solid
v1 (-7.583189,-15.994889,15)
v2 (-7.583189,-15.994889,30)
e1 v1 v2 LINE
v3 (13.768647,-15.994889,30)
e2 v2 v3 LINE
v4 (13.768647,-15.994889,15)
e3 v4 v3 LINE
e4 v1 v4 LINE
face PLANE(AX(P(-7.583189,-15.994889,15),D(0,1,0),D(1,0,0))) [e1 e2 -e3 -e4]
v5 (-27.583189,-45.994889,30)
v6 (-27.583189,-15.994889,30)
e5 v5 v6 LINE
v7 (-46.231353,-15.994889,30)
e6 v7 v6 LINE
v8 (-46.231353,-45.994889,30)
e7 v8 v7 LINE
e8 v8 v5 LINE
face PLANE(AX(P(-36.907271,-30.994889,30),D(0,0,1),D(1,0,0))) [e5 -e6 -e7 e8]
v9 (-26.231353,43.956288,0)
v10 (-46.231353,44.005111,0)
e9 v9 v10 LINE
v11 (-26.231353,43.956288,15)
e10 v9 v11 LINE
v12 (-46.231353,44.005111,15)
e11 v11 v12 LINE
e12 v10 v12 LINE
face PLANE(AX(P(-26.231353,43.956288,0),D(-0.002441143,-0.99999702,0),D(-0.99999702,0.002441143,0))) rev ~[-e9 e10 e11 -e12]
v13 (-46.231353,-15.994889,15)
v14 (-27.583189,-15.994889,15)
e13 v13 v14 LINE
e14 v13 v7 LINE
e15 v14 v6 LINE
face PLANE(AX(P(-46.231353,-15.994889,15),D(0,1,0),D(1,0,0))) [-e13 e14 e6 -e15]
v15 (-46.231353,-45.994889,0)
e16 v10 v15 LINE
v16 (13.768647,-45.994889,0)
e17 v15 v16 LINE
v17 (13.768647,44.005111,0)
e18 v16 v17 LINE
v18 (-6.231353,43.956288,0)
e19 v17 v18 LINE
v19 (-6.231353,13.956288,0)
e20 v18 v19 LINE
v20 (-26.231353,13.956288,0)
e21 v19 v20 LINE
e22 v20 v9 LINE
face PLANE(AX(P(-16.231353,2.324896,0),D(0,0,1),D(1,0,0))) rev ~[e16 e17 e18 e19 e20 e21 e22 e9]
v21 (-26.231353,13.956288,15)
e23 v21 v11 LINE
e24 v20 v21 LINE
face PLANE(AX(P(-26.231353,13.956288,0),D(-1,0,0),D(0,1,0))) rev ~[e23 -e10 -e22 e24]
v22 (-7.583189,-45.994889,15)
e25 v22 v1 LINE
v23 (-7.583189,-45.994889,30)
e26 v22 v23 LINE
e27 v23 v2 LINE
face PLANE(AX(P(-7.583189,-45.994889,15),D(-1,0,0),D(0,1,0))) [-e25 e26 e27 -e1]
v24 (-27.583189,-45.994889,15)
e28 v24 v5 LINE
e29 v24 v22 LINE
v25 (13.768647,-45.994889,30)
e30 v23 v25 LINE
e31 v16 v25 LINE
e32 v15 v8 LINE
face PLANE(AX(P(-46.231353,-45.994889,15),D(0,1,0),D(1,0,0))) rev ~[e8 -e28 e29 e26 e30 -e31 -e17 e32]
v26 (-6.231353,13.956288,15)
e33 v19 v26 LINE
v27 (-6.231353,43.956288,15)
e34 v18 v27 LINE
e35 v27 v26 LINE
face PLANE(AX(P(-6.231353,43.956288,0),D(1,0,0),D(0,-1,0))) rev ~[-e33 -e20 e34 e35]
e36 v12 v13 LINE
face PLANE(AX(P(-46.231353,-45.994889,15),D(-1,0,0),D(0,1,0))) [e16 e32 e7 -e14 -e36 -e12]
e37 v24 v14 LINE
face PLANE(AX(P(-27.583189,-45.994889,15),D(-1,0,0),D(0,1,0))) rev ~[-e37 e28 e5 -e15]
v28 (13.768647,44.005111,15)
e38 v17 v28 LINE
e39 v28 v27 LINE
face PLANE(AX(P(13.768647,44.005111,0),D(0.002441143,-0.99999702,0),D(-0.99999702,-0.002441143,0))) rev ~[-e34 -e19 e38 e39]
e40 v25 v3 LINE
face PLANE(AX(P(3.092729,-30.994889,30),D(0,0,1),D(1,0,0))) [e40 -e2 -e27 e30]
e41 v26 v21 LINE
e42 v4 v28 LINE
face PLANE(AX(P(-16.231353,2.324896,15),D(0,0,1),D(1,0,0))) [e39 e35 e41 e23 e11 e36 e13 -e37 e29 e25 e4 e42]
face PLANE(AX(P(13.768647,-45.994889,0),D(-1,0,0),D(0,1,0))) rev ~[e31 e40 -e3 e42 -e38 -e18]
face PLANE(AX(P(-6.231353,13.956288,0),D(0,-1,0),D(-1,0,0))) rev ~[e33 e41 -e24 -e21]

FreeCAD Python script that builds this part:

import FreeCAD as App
import Part
import Sketcher
from FreeCAD import Vector


def add_polygon(sketch, points):
    """Adds a closed chain of lines whose ends are joined by coincident constraints."""
    first, n = sketch.GeometryCount, len(points)
    for a, b in zip(points, points[1:] + points[:1]):
        sketch.addGeometry(Part.LineSegment(App.Vector(*a, 0), App.Vector(*b, 0)), False)
    for i in range(n):
        sketch.addConstraint(Sketcher.Constraint("Coincident", first + i, 2, first + (i + 1) % n, 1))

doc = App.newDocument("Part")
body = doc.addObject("PartDesign::Body", "Body")

# Sketch on XY plane
sketch1 = body.newObject("Sketcher::SketchObject", "Sketch")
sketch1.AttachmentSupport = (doc.getObject("XY_Plane"), [""])
sketch1.MapMode = "FlatFace"
add_polygon(sketch1, [(-46.231353, 44.005111), (-46.231353, -45.994889), (13.768647, -45.994889), (13.768647, 44.005111), (-6.231353, 43.956288), (-6.231353, 13.956288), (-26.231353, 13.956288), (-26.231353, 43.956288)])  # lines 0-7
sketch1.addConstraint(Sketcher.Constraint("Vertical", 0))
sketch1.addConstraint(Sketcher.Constraint("Horizontal", 1))
sketch1.addConstraint(Sketcher.Constraint("Vertical", 2))
sketch1.addConstraint(Sketcher.Constraint("Vertical", 4))
sketch1.addConstraint(Sketcher.Constraint("Horizontal", 5))
sketch1.addConstraint(Sketcher.Constraint("Vertical", 6))
sketch1.addConstraint(Sketcher.Constraint("Horizontal", 3, 2, 6, 2))
sketch1.addConstraint(Sketcher.Constraint("Horizontal", 2, 2, 7, 2))
sketch1.addConstraint(Sketcher.Constraint("Equal", 3, 7))
sketch1.addConstraint(Sketcher.Constraint("DistanceX", 1, 1, 1, 2, 60.0))
sketch1.addConstraint(Sketcher.Constraint("DistanceX", 5, 2, 5, 1, 20.0))
sketch1.addConstraint(Sketcher.Constraint("DistanceY", 0, 2, 0, 1, 90.0))
sketch1.addConstraint(Sketcher.Constraint("DistanceY", 4, 2, 4, 1, 30.0))
sketch1.addConstraint(Sketcher.Constraint("DistanceY", 0, 2, -1, 1, 45.994889))
sketch1.addConstraint(Sketcher.Constraint("DistanceY", -1, 1, 4, 2, 13.956288))
sketch1.addConstraint(Sketcher.Constraint("DistanceX", 0, 2, -1, 1, 46.231353))
pad1 = body.newObject("PartDesign::Pad", "Pad")
pad1.Profile = sketch1
pad1.Length = 15

# Sketch on XY plane
sketch2 = body.newObject("Sketcher::SketchObject", "Sketch001")
sketch2.AttachmentSupport = (doc.getObject("XY_Plane"), [""])
sketch2.MapMode = "FlatFace"
sketch2.AttachmentOffset = App.Placement(Vector(0, 0, 15), App.Rotation())
add_polygon(sketch2, [(-46.231353, -15.994889), (-46.231353, -45.994889), (-27.583189, -45.994889), (-27.583189, -15.994889)])  # lines 0-3
add_polygon(sketch2, [(-7.583189, -15.994889), (-7.583189, -45.994889), (13.768647, -45.994889), (13.768647, -15.994889)])  # lines 4-7
sketch2.addConstraint(Sketcher.Constraint("Vertical", 0))
sketch2.addConstraint(Sketcher.Constraint("Horizontal", 1))
sketch2.addConstraint(Sketcher.Constraint("Vertical", 2))
sketch2.addConstraint(Sketcher.Constraint("Horizontal", 3))
sketch2.addConstraint(Sketcher.Constraint("Vertical", 4))
sketch2.addConstraint(Sketcher.Constraint("Horizontal", 5))
sketch2.addConstraint(Sketcher.Constraint("Vertical", 6))
sketch2.addConstraint(Sketcher.Constraint("Horizontal", 7))
sketch2.addConstraint(Sketcher.Constraint("Horizontal", 1, 2, 4, 2))
sketch2.addConstraint(Sketcher.Constraint("Horizontal", 3, 2, 6, 2))
sketch2.addConstraint(Sketcher.Constraint("DistanceY", 0, 2, 0, 1, 30.0))
sketch2.addConstraint(Sketcher.Constraint("DistanceX", 1, 2, 4, 2, 20.0))
sketch2.addConstraint(Sketcher.Constraint("DistanceX", 0, 2, 5, 2, 60.0))
sketch2.addConstraint(Sketcher.Constraint("DistanceX", 1, 1, 1, 2, 18.648164))
sketch2.addConstraint(Sketcher.Constraint("DistanceY", 0, 2, -1, 1, 45.994889))
sketch2.addConstraint(Sketcher.Constraint("DistanceX", 1, 2, -1, 1, 27.583189))
pad2 = body.newObject("PartDesign::Pad", "Pad001")
pad2.Profile = sketch2
pad2.Length = 15

doc.recompute()
